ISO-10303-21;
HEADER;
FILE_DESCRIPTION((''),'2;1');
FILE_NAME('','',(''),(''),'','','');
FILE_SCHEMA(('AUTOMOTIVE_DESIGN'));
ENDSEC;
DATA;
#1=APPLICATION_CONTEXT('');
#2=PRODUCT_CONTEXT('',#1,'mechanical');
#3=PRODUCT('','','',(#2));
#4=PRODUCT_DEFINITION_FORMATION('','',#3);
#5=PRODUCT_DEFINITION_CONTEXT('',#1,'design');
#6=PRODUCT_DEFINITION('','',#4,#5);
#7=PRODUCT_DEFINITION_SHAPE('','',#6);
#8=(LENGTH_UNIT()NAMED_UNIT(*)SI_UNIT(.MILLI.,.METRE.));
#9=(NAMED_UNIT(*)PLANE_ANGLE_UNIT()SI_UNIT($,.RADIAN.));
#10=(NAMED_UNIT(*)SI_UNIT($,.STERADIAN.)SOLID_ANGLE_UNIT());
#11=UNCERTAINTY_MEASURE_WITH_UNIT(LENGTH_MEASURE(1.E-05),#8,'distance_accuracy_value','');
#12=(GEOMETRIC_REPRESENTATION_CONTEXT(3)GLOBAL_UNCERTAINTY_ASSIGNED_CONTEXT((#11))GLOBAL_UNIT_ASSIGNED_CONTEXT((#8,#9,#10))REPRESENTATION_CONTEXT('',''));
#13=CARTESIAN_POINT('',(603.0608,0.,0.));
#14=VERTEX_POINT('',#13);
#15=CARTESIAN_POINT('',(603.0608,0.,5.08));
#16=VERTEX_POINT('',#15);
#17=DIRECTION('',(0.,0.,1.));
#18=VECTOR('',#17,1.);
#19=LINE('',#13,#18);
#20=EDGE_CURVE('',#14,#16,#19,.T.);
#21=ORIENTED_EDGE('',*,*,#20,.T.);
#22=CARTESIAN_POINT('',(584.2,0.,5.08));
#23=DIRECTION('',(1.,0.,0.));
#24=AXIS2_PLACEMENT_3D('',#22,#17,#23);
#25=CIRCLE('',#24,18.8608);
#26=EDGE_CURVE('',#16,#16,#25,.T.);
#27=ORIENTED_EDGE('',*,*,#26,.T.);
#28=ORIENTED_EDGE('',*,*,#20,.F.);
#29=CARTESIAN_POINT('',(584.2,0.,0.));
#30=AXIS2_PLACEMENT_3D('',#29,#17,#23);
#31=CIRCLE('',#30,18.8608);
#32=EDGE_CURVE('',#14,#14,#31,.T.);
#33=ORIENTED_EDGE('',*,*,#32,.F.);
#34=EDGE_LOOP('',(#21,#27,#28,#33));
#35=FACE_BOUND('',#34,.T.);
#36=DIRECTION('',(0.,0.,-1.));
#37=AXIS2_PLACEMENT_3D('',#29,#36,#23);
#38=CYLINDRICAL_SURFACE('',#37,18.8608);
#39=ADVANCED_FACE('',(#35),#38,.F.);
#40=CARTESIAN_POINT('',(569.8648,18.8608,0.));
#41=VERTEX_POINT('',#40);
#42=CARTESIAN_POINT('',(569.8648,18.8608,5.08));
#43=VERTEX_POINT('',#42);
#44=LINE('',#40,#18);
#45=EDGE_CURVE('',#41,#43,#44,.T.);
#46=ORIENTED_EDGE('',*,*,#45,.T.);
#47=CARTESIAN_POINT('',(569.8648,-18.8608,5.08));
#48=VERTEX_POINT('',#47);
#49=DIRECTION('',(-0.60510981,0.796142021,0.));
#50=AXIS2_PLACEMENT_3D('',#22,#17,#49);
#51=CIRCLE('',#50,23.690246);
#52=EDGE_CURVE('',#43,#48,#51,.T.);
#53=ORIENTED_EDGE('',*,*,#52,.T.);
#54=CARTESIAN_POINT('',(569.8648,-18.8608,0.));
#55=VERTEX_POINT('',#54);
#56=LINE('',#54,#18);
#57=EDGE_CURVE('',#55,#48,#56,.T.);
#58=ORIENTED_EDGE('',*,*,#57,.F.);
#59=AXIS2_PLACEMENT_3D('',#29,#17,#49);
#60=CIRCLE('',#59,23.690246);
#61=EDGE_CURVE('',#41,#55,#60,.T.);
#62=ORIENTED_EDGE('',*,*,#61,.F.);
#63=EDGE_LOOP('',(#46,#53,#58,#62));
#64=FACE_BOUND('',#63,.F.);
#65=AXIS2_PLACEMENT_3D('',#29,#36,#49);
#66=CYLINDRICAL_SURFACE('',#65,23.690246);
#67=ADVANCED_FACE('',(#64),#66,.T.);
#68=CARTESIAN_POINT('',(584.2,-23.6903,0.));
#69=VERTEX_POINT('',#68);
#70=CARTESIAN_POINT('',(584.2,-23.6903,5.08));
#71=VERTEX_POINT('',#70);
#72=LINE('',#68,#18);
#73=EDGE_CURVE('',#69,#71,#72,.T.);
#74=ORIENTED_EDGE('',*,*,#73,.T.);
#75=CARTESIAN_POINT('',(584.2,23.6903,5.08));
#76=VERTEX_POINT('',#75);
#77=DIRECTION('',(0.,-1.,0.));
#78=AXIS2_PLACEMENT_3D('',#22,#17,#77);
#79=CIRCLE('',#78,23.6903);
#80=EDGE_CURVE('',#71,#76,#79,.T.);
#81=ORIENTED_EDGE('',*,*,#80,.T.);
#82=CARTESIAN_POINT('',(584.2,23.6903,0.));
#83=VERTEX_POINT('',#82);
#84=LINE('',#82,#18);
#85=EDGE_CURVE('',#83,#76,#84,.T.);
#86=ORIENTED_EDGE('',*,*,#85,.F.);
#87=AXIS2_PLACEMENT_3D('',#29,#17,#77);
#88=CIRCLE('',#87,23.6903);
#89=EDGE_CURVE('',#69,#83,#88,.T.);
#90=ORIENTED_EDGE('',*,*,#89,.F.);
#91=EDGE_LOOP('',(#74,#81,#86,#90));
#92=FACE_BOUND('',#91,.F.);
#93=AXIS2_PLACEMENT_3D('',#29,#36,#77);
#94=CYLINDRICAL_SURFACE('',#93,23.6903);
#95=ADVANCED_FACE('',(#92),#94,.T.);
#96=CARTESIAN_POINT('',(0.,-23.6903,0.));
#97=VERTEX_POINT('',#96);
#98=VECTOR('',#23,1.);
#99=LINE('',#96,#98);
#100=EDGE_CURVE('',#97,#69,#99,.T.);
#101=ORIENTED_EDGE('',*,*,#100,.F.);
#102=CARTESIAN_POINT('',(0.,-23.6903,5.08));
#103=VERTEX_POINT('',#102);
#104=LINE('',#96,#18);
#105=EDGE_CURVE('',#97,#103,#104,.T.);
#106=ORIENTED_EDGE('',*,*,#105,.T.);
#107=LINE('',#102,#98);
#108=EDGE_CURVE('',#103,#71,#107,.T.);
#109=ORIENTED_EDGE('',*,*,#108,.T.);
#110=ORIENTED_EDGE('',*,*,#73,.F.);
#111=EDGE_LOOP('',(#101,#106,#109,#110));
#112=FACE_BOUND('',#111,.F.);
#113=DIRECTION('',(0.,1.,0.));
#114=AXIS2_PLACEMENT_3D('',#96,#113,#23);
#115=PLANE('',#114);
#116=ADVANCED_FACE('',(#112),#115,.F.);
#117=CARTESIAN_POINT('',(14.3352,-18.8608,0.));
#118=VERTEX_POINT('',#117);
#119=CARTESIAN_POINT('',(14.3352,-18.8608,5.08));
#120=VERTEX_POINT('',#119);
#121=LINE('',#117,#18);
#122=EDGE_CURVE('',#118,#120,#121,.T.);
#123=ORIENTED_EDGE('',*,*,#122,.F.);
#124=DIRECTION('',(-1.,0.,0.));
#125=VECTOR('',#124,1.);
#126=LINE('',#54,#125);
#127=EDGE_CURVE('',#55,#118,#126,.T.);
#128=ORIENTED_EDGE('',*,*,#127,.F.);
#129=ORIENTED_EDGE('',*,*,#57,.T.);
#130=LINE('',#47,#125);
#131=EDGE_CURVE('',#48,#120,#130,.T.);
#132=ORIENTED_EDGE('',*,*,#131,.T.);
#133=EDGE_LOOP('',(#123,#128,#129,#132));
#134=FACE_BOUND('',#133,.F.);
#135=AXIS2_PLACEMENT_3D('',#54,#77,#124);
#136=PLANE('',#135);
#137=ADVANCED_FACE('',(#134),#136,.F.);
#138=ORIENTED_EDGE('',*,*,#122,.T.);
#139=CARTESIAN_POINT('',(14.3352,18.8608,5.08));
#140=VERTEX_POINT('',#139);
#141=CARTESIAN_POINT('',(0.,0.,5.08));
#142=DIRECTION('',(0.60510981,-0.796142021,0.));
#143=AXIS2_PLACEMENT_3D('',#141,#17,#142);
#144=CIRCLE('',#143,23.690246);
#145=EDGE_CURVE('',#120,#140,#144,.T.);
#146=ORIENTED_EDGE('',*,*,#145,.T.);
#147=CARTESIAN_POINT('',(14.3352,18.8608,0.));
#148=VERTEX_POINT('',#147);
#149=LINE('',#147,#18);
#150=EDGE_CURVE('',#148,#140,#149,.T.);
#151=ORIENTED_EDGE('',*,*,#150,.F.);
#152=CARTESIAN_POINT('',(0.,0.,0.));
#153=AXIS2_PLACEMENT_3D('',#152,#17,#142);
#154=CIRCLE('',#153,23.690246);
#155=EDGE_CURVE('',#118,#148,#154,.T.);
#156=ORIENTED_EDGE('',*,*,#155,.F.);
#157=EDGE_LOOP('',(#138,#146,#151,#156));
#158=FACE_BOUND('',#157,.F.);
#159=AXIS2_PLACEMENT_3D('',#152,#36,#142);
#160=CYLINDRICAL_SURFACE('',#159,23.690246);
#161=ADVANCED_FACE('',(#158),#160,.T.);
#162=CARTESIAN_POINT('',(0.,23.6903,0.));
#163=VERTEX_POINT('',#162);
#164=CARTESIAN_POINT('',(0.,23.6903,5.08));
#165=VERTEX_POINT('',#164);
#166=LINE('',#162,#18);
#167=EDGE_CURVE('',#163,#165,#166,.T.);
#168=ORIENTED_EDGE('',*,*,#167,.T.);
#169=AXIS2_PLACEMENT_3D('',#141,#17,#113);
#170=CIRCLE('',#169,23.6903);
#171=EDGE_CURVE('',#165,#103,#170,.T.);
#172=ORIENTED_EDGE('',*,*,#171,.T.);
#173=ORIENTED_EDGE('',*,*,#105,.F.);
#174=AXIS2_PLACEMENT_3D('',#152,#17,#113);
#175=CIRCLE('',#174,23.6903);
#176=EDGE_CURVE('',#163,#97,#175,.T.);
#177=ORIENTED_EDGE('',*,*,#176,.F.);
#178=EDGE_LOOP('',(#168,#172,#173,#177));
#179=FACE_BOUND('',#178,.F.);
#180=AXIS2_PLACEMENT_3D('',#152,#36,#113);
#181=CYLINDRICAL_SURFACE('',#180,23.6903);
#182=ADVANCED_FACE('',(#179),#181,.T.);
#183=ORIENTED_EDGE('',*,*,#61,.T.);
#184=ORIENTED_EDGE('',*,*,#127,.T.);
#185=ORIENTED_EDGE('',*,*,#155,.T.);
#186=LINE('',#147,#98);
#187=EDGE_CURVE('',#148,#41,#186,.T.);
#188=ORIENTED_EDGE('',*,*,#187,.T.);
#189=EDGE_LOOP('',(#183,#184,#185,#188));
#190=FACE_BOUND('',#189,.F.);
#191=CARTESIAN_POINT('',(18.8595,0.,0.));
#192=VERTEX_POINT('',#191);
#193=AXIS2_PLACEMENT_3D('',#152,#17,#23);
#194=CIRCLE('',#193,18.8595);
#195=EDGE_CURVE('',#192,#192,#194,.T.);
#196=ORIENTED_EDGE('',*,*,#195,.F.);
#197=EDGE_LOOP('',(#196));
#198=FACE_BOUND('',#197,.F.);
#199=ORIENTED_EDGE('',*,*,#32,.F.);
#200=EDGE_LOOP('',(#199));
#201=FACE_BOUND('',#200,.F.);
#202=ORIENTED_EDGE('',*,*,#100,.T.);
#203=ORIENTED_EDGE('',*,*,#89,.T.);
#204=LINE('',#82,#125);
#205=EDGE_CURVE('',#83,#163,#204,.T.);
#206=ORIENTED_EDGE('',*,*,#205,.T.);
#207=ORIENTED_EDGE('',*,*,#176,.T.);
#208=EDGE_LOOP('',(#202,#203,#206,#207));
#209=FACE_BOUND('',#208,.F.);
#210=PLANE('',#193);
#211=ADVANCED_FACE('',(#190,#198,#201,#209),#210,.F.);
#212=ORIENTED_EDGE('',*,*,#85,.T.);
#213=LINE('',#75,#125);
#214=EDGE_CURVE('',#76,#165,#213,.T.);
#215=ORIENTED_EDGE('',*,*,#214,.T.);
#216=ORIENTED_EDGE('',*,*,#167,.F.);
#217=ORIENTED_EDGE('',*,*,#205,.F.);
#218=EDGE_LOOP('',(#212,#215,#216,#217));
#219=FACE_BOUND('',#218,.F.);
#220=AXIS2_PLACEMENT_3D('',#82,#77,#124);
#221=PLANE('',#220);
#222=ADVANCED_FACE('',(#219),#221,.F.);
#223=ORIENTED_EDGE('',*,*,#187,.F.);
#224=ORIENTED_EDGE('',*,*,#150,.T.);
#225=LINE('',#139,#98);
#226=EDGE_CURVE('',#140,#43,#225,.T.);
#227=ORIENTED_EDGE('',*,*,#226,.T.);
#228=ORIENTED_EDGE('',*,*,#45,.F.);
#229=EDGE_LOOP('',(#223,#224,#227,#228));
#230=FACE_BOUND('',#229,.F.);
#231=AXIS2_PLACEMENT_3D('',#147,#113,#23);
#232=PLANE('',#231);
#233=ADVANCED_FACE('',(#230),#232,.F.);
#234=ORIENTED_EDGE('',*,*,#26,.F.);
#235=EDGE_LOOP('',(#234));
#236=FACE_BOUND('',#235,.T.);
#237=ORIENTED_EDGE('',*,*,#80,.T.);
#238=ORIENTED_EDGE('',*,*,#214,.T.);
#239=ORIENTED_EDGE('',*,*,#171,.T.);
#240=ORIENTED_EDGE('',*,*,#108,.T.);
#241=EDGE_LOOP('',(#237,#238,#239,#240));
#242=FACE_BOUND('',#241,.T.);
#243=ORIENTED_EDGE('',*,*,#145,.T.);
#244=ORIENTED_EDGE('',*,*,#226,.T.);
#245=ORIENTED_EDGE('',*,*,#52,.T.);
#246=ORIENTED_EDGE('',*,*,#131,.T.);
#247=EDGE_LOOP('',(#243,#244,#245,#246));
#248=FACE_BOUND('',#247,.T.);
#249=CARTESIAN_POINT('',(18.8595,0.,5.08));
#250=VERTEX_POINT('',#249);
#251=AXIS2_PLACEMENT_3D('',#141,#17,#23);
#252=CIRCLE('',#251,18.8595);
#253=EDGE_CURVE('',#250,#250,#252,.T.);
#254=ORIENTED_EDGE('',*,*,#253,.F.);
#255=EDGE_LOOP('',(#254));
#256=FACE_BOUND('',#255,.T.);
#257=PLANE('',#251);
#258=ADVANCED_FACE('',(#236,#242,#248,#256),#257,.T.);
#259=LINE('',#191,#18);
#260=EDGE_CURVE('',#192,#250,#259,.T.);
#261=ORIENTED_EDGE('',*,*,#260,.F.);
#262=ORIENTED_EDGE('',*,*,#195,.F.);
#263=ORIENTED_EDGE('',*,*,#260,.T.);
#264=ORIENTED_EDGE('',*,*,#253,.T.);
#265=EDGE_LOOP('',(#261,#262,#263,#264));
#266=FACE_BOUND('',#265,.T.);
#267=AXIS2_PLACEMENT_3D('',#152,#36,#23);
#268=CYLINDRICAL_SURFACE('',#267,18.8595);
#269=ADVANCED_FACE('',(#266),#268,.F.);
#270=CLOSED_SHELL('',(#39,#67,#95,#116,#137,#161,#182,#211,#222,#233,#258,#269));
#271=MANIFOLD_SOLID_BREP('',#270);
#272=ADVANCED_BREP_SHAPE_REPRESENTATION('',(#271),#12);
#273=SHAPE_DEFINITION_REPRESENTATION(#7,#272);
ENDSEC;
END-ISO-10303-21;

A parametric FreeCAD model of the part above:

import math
import FreeCAD as App
import Part
import Sketcher

V = App.Vector
Q = App.Units.Quantity

doc = App.newDocument("Part")
body = doc.addObject("PartDesign::Body", "Body")

sketch1 = body.newObject("Sketcher::SketchObject", "Sketch")
sketch1.AttachmentSupport = (doc.getObject("XY_Plane"), [""])
sketch1.MapMode = "FlatFace"
sketch1.addGeometry([
    Part.LineSegment(V(584, 24, 0), V(0, 24, 0)),
    Part.ArcOfCircle(Part.Circle(V(0, 0, 0), V(0, 0, 1), 24), math.radians(90), math.radians(270)),
    Part.LineSegment(V(0, -24, 0), V(584, -24, 0)),
    Part.ArcOfCircle(Part.Circle(V(584, 0, 0), V(0, 0, 1), 24), math.radians(-90), math.radians(90)),
    Part.Circle(V(0, 0, 0), V(0, 0, 1), 19),
    Part.LineSegment(V(14, 19, 0), V(570, 19, 0)),
    Part.ArcOfCircle(Part.Circle(V(584, 0, 0), V(0, 0, 1), 24), math.radians(127), math.radians(233)),
    Part.LineSegment(V(570, -19, 0), V(14, -19, 0)),
    Part.ArcOfCircle(Part.Circle(V(0, 0, 0), V(0, 0, 1), 24), math.radians(-53), math.radians(53)),
    Part.Circle(V(584, 0, 0), V(0, 0, 1), 19),
], False)
sketch1.addConstraint([
    Sketcher.Constraint("Tangent", 0, 2, 1, 1),
    Sketcher.Constraint("Tangent", 1, 2, 2, 1),
    Sketcher.Constraint("Tangent", 2, 2, 3, 1),
    Sketcher.Constraint("Tangent", 3, 2, 0, 1),
    Sketcher.Constraint("Coincident", 5, 2, 6, 1),
    Sketcher.Constraint("Coincident", 6, 2, 7, 1),
    Sketcher.Constraint("Coincident", 7, 2, 8, 1),
    Sketcher.Constraint("Coincident", 8, 2, 5, 1),
    Sketcher.Constraint("Horizontal", 0),
    Sketcher.Constraint("Horizontal", 2),
    Sketcher.Constraint("Horizontal", 5),
    Sketcher.Constraint("Horizontal", 7),
    Sketcher.Constraint("Coincident", 1, 3, -1, 1),
    Sketcher.Constraint("Coincident", 4, 3, -1, 1),
    Sketcher.Constraint("Coincident", 8, 3, -1, 1),
    Sketcher.Constraint("Coincident", 6, 3, 3, 3),
    Sketcher.Constraint("Coincident", 9, 3, 3, 3),
    Sketcher.Constraint("Equal", 3, 6),
    Sketcher.Constraint("Equal", 6, 8),
    Sketcher.Constraint("Vertical", 5, 2, 6, 2),
    Sketcher.Constraint("Diameter", 4, Q("1.485 in")),
    Sketcher.Constraint("DistanceX", 0, 2, 0, 1, Q("23 in")),
    Sketcher.Constraint("Diameter", 9, Q("1.4851 in")),
    Sketcher.Constraint("Radius", 1, Q("0.9327 in")),
    Sketcher.Constraint("DistanceX", 5, 1, 5, 2, 555.5296),
])
pad1 = body.newObject("PartDesign::Pad", "Pad")
pad1.Profile = sketch1
pad1.Length = Q("0.2 in")

doc.recompute()
